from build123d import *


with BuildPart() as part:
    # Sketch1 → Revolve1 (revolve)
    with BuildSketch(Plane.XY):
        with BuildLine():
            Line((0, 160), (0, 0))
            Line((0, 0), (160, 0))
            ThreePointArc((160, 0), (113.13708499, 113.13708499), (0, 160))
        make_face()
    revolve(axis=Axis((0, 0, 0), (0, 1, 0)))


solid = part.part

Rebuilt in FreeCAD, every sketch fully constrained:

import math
import FreeCAD as App
import Part
import Sketcher

V = App.Vector
Q = App.Units.Quantity

doc = App.newDocument("Part")
body = doc.addObject("PartDesign::Body", "Body")

# Sketch on XY plane
sketch1 = body.newObject("Sketcher::SketchObject", "Sketch")
sketch1.AttachmentSupport = (doc.getObject("XY_Plane"), [""])
sketch1.MapMode = "FlatFace"
sketch1.addGeometry(Part.LineSegment(V(0, 160, 0), V(0, 0, 0)), False)
sketch1.addGeometry(Part.LineSegment(V(0, 0, 0), V(160, 0, 0)), False)
sketch1.addGeometry(Part.ArcOfCircle(Part.Circle(V(0, 0, 0), V(0, 0, 1), 160), math.radians(0), math.radians(90)), False)
sketch1.addConstraint(Sketcher.Constraint("Coincident", 0, 2, 1, 1))
sketch1.addConstraint(Sketcher.Constraint("Coincident", 1, 2, 2, 1))
sketch1.addConstraint(Sketcher.Constraint("Coincident", 2, 2, 0, 1))
sketch1.addConstraint(Sketcher.Constraint("Vertical", 0))
sketch1.addConstraint(Sketcher.Constraint("Horizontal", 1))
sketch1.addConstraint(Sketcher.Constraint("Coincident", 2, 3, -1, 1))
sketch1.addConstraint(Sketcher.Constraint("Coincident", 0, 2, -1, 1))
sketch1.addConstraint(Sketcher.Constraint("Radius", 2, Q("160 mm")))
revolution = body.newObject("PartDesign::Revolution", "Revolution")
revolution.Profile = sketch1
revolution.ReferenceAxis = (sketch1, ["V_Axis"])
revolution.Angle = 360

doc.recompute()
